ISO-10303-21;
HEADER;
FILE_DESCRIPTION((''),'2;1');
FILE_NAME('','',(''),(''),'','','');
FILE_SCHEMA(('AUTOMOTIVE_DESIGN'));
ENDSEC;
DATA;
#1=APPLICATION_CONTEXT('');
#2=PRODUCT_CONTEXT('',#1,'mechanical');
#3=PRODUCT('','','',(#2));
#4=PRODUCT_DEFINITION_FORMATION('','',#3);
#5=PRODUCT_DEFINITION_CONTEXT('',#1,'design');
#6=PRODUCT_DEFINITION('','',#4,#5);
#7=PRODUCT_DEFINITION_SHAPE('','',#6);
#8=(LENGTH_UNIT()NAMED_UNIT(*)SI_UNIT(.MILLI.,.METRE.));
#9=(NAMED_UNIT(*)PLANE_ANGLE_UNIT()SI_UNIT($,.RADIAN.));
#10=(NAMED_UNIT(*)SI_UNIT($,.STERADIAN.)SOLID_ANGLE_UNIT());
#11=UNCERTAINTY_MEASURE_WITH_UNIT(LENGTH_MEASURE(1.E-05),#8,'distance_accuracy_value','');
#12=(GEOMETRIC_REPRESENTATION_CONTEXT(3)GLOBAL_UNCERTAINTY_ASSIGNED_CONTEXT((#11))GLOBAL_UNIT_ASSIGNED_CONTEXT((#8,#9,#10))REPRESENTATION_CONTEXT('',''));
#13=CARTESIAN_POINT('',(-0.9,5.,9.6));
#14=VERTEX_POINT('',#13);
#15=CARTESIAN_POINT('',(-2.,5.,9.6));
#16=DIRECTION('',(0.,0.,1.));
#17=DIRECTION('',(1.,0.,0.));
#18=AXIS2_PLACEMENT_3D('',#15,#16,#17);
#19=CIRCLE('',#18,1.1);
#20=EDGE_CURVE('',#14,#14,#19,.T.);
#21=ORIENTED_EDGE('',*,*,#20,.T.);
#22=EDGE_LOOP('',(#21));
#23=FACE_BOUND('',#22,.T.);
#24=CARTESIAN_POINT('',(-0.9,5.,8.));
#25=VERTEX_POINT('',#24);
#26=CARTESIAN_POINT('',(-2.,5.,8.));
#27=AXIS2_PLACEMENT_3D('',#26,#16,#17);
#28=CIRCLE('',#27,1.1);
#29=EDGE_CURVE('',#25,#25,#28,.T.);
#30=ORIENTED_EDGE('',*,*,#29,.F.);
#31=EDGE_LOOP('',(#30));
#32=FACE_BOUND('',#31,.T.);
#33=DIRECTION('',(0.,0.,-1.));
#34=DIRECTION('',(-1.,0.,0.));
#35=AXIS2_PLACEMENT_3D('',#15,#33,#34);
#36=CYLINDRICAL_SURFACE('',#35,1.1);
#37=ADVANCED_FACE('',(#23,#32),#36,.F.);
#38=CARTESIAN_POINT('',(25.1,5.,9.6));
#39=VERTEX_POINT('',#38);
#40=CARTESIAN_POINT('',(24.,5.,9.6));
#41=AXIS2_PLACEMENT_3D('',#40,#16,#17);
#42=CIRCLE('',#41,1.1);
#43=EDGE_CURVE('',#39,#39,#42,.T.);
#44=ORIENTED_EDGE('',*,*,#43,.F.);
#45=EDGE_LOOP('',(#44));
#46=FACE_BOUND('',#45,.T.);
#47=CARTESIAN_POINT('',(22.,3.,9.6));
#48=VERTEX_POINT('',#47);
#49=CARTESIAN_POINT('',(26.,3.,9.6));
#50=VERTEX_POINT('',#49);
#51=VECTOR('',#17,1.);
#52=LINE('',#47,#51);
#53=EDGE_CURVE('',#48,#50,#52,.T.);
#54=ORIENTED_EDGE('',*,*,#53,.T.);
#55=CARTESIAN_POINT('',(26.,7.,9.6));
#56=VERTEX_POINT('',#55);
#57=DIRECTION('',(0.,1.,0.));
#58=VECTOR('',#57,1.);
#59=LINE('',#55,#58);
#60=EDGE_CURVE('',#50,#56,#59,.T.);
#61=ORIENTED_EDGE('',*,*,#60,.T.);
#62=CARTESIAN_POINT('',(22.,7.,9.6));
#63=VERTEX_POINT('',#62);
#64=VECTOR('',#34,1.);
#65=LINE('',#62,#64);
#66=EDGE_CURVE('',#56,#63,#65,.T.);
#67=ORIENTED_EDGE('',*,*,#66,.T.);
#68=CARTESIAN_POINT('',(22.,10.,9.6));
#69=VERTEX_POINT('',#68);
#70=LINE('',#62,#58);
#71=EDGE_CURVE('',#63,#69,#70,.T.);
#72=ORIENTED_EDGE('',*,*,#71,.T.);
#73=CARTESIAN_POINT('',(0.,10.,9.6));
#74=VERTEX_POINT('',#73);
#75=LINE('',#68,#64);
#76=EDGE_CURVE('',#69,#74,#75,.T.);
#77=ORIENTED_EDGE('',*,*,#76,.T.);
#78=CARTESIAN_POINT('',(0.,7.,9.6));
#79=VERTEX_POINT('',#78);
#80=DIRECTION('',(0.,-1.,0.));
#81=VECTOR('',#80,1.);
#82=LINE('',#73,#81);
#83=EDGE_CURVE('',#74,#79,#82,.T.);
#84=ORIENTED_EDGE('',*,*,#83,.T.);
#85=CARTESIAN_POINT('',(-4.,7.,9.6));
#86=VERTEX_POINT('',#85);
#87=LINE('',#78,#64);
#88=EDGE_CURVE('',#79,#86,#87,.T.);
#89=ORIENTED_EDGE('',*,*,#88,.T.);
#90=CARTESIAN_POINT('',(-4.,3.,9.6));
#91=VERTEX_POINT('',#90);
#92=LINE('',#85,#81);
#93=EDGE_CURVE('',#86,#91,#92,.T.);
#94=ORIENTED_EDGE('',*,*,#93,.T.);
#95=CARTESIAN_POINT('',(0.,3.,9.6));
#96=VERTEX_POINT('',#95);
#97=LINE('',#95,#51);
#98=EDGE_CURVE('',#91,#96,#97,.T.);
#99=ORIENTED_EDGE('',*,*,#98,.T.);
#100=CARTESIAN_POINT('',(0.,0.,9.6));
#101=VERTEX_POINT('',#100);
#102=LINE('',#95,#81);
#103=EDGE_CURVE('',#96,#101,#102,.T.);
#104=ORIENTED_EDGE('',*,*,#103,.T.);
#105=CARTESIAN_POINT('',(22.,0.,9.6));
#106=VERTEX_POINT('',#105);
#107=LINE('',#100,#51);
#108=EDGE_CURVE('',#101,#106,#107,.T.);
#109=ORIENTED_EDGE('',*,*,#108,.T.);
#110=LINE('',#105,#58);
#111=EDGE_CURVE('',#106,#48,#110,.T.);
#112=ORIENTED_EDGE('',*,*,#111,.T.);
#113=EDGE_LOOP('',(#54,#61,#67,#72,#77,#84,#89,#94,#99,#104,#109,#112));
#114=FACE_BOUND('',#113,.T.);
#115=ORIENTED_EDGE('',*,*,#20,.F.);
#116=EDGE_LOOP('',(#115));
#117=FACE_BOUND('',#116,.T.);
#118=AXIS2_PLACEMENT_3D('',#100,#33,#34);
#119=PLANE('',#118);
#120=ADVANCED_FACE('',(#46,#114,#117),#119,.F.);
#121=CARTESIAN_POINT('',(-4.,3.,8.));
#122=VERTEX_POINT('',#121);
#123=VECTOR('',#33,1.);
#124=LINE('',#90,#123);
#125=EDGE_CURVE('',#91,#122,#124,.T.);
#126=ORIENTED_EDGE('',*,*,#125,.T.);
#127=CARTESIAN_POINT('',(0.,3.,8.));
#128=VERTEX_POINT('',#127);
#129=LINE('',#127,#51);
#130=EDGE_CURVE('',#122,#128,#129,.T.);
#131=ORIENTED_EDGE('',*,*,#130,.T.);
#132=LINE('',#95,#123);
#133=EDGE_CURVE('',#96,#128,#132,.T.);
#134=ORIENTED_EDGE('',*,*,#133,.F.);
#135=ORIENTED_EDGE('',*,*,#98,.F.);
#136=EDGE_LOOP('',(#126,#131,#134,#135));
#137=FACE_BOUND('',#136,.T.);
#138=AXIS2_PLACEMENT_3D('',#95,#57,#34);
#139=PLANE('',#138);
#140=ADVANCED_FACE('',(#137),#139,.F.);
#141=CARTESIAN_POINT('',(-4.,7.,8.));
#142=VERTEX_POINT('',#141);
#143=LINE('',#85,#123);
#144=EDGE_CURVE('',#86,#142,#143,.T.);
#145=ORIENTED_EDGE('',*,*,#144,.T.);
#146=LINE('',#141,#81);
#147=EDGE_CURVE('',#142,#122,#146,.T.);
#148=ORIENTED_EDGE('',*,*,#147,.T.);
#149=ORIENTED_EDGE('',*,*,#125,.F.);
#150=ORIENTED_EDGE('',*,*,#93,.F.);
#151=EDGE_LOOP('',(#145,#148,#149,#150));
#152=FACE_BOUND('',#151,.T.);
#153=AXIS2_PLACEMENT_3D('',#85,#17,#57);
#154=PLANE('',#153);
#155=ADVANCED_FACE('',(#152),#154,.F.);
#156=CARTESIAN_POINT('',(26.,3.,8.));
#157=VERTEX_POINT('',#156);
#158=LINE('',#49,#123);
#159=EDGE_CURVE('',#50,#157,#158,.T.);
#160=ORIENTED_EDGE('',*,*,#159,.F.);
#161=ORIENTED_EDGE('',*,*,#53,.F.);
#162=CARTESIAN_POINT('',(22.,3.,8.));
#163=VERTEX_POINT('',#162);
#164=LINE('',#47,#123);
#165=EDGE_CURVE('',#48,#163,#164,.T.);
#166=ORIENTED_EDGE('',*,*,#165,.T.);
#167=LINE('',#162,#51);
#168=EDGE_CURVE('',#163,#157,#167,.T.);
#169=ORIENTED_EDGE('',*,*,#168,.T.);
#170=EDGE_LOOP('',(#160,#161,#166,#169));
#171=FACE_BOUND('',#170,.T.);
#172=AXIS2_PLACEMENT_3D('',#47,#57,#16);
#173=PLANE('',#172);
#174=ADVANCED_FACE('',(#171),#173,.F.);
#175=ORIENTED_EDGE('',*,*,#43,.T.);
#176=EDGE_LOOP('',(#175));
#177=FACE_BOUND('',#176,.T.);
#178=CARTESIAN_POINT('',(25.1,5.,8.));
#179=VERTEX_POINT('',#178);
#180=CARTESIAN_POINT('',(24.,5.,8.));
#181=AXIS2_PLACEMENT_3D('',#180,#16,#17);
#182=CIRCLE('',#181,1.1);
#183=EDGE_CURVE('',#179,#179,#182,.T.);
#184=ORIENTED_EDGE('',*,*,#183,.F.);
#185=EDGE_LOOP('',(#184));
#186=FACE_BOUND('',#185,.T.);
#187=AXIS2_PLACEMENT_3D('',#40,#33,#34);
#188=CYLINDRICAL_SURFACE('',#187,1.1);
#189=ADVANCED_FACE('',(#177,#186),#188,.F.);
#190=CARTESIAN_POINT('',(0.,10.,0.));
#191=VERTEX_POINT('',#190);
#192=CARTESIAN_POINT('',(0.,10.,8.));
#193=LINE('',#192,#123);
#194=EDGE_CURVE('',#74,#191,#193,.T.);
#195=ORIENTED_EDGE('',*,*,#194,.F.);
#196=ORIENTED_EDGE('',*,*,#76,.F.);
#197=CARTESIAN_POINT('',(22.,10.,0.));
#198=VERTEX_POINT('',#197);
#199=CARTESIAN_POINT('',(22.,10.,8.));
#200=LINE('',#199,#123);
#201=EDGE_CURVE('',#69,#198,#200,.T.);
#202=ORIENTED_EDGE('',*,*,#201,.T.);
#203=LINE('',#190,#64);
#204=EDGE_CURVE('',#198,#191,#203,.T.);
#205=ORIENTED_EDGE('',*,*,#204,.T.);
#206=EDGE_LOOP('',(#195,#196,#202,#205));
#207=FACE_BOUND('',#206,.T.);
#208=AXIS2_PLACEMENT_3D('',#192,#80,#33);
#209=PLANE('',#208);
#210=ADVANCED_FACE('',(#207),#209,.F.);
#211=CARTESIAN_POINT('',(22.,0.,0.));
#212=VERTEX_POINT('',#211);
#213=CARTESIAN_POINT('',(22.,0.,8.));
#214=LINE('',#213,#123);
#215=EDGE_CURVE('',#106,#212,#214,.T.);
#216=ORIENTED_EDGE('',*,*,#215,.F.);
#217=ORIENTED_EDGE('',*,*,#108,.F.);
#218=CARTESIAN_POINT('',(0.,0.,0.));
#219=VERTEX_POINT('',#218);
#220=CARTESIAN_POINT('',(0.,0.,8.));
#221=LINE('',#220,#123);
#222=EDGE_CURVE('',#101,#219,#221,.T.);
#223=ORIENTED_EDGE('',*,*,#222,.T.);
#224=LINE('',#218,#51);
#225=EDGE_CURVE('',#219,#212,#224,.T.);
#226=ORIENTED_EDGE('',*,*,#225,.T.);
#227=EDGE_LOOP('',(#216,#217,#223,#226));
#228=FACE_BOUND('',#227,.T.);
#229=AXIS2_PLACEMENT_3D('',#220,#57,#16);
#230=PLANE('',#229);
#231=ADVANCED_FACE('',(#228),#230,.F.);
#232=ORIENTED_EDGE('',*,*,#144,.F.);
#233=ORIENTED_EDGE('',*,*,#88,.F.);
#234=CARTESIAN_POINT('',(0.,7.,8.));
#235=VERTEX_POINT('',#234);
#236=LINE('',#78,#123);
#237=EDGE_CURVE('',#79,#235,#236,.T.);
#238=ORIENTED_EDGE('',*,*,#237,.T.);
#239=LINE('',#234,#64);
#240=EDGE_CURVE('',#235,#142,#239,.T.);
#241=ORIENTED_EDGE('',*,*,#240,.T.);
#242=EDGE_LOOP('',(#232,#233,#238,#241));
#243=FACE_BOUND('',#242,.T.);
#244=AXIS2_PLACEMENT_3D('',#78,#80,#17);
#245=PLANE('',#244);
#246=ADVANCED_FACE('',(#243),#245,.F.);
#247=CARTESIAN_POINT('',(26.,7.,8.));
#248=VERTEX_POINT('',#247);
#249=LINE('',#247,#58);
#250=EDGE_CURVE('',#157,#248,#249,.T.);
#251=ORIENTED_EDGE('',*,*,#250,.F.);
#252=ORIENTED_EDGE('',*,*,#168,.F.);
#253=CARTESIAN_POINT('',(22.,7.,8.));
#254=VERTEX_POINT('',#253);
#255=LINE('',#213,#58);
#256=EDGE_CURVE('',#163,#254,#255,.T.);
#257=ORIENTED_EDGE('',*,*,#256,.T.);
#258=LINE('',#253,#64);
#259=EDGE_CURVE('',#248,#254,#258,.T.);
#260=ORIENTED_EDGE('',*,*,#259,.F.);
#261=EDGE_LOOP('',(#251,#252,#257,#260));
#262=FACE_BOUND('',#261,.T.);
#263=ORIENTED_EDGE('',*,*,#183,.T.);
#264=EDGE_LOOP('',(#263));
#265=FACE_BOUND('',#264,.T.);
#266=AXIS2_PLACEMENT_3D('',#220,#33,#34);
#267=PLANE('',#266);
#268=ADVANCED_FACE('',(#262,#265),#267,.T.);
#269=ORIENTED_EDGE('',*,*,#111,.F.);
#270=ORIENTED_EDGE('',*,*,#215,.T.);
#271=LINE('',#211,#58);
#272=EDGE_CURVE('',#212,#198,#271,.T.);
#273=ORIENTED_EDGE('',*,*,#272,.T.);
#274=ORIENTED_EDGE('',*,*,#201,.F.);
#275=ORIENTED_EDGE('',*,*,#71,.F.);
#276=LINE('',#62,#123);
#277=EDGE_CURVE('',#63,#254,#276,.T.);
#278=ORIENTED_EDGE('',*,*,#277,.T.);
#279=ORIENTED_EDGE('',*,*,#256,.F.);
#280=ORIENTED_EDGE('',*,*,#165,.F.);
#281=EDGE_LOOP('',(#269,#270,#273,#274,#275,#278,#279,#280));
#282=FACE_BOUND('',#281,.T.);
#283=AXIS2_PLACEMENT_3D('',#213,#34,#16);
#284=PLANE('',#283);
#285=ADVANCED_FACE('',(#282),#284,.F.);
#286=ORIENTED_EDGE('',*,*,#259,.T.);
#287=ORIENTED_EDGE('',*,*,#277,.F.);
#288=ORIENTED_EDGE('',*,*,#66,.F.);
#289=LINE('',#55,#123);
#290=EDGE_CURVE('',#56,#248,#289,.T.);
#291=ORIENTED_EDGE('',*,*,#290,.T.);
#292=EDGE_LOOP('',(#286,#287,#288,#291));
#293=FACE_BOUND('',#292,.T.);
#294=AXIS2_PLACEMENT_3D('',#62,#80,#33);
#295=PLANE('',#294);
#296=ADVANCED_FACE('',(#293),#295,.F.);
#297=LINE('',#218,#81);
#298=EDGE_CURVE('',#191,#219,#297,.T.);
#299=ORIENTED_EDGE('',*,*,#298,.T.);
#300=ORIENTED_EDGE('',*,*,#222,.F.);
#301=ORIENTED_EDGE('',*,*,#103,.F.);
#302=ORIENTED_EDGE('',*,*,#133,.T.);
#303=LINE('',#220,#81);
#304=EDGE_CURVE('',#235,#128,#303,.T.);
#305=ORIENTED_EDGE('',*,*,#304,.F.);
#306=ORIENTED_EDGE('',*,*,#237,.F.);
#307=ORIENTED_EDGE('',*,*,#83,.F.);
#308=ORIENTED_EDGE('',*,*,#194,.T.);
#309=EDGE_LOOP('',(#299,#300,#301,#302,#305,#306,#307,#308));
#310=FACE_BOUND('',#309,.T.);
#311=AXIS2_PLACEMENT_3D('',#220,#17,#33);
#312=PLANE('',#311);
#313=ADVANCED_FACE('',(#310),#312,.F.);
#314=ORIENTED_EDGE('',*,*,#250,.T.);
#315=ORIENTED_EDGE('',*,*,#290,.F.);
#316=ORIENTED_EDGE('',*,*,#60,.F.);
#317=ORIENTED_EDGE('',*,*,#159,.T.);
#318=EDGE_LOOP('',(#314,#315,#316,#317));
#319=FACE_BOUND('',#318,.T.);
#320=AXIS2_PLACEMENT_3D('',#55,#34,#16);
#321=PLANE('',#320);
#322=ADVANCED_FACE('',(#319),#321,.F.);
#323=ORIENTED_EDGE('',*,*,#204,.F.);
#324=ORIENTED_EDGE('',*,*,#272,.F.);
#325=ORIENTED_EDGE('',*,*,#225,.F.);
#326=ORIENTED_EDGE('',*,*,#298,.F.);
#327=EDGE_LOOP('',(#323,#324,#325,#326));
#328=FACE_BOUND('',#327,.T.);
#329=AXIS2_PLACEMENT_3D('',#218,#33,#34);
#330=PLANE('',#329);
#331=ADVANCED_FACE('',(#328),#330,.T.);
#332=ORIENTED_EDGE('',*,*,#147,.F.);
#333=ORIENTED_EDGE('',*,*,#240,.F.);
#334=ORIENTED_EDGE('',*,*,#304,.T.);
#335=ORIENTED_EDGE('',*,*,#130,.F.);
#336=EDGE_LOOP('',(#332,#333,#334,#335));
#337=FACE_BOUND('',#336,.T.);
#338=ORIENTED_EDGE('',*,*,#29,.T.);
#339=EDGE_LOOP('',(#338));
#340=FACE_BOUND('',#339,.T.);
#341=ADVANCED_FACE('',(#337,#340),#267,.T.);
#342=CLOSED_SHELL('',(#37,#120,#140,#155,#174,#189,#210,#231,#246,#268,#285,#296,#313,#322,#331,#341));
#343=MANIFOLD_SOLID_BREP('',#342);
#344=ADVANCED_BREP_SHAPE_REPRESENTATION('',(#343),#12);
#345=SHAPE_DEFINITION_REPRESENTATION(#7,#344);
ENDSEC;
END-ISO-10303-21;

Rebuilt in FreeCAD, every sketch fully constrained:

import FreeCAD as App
import Part
import Sketcher

V = App.Vector
Q = App.Units.Quantity

doc = App.newDocument("Part")
body = doc.addObject("PartDesign::Body", "Body")

# Sketch on XY plane
sketch1 = doc.addObject("Sketcher::SketchObject", "Sketch")
body.addObject(sketch1)
sketch1.AttachmentSupport = (doc.XY_Plane, [""])
sketch1.MapMode = "FlatFace"
sketch1.addGeometry(Part.LineSegment(V(0, 10, 0), V(0, 0, 0)), False)
sketch1.addGeometry(Part.LineSegment(V(0, 0, 0), V(22, 0, 0)), False)
sketch1.addGeometry(Part.LineSegment(V(22, 0, 0), V(22, 10, 0)), False)
sketch1.addGeometry(Part.LineSegment(V(22, 10, 0), V(0, 10, 0)), False)
sketch1.addConstraint(Sketcher.Constraint("Coincident", 0, 2, 1, 1))
sketch1.addConstraint(Sketcher.Constraint("Coincident", 1, 2, 2, 1))
sketch1.addConstraint(Sketcher.Constraint("Coincident", 2, 2, 3, 1))
sketch1.addConstraint(Sketcher.Constraint("Coincident", 3, 2, 0, 1))
sketch1.addConstraint(Sketcher.Constraint("Vertical", 0))
sketch1.addConstraint(Sketcher.Constraint("Horizontal", 1))
sketch1.addConstraint(Sketcher.Constraint("Vertical", 2))
sketch1.addConstraint(Sketcher.Constraint("Horizontal", 3))
sketch1.addConstraint(Sketcher.Constraint("Coincident", 0, 2, -1, 1))
sketch1.addConstraint(Sketcher.Constraint("DistanceX", 1, 1, 1, 2, Q("22 mm")))
sketch1.addConstraint(Sketcher.Constraint("DistanceY", 0, 2, 0, 1, Q("10 mm")))
pad1 = doc.addObject("PartDesign::Pad", "Pad")
body.addObject(pad1)
pad1.Profile = sketch1
pad1.Length = 8

# Sketch on XY plane
sketch2 = doc.addObject("Sketcher::SketchObject", "Sketch001")
body.addObject(sketch2)
sketch2.AttachmentSupport = (doc.XY_Plane, [""])
sketch2.MapMode = "FlatFace"
sketch2.AttachmentOffset = App.Placement(V(0, 0, 8), App.Rotation())
sketch2.addGeometry(Part.LineSegment(V(0, 7, 0), V(-4, 7, 0)), False)
sketch2.addGeometry(Part.LineSegment(V(-4, 7, 0), V(-4, 3, 0)), False)
sketch2.addGeometry(Part.LineSegment(V(-4, 3, 0), V(0, 3, 0)), False)
sketch2.addGeometry(Part.LineSegment(V(0, 3, 0), V(0, 0, 0)), False)
sketch2.addGeometry(Part.LineSegment(V(0, 0, 0), V(22, 0, 0)), False)
sketch2.addGeometry(Part.LineSegment(V(22, 0, 0), V(22, 3, 0)), False)
sketch2.addGeometry(Part.LineSegment(V(22, 3, 0), V(26, 3, 0)), False)
sketch2.addGeometry(Part.LineSegment(V(26, 3, 0), V(26, 7, 0)), False)
sketch2.addGeometry(Part.LineSegment(V(26, 7, 0), V(22, 7, 0)), False)
sketch2.addGeometry(Part.LineSegment(V(22, 7, 0), V(22, 10, 0)), False)
sketch2.addGeometry(Part.LineSegment(V(22, 10, 0), V(0, 10, 0)), False)
sketch2.addGeometry(Part.LineSegment(V(0, 10, 0), V(0, 7, 0)), False)
sketch2.addGeometry(Part.Circle(V(-2, 5, 0), V(0, 0, 1), 1.1), False)
sketch2.addGeometry(Part.Circle(V(24, 5, 0), V(0, 0, 1), 1.1), False)
sketch2.addConstraint(Sketcher.Constraint("Coincident", 0, 2, 1, 1))
sketch2.addConstraint(Sketcher.Constraint("Coincident", 1, 2, 2, 1))
sketch2.addConstraint(Sketcher.Constraint("Coincident", 2, 2, 3, 1))
sketch2.addConstraint(Sketcher.Constraint("Coincident", 3, 2, 4, 1))
sketch2.addConstraint(Sketcher.Constraint("Coincident", 4, 2, 5, 1))
sketch2.addConstraint(Sketcher.Constraint("Coincident", 5, 2, 6, 1))
sketch2.addConstraint(Sketcher.Constraint("Coincident", 6, 2, 7, 1))
sketch2.addConstraint(Sketcher.Constraint("Coincident", 7, 2, 8, 1))
sketch2.addConstraint(Sketcher.Constraint("Coincident", 8, 2, 9, 1))
sketch2.addConstraint(Sketcher.Constraint("Coincident", 9, 2, 10, 1))
sketch2.addConstraint(Sketcher.Constraint("Coincident", 10, 2, 11, 1))
sketch2.addConstraint(Sketcher.Constraint("Coincident", 11, 2, 0, 1))
sketch2.addConstraint(Sketcher.Constraint("Horizontal", 0))
sketch2.addConstraint(Sketcher.Constraint("Vertical", 1))
sketch2.addConstraint(Sketcher.Constraint("Horizontal", 2))
sketch2.addConstraint(Sketcher.Constraint("Vertical", 3))
sketch2.addConstraint(Sketcher.Constraint("Horizontal", 4))
sketch2.addConstraint(Sketcher.Constraint("Vertical", 5))
sketch2.addConstraint(Sketcher.Constraint("Horizontal", 6))
sketch2.addConstraint(Sketcher.Constraint("Vertical", 7))
sketch2.addConstraint(Sketcher.Constraint("Horizontal", 8))
sketch2.addConstraint(Sketcher.Constraint("Vertical", 9))
sketch2.addConstraint(Sketcher.Constraint("Horizontal", 10))
sketch2.addConstraint(Sketcher.Constraint("Vertical", 11))
sketch2.addConstraint(Sketcher.Constraint("Coincident", 3, 2, -1, 1))
sketch2.addConstraint(Sketcher.Constraint("Equal", 12, 13))
sketch2.addConstraint(Sketcher.Constraint("PointOnObject", 10, 2, -2))
sketch2.addConstraint(Sketcher.Constraint("Horizontal", 12, 3, 13, 3))
sketch2.addConstraint(Sketcher.Constraint("Horizontal", 2, 2, 5, 2))
sketch2.addConstraint(Sketcher.Constraint("Horizontal", 0, 2, 7, 2))
sketch2.addConstraint(Sketcher.Constraint("Vertical", 5, 2, 8, 2))
sketch2.addConstraint(Sketcher.Constraint("Equal", 2, 6))
sketch2.addConstraint(Sketcher.Constraint("Equal", 8, 1))
sketch2.addConstraint(Sketcher.Constraint("Equal", 5, 9))
sketch2.addConstraint(Sketcher.Constraint("Diameter", 12, Q("2.2 mm")))
sketch2.addConstraint(Sketcher.Constraint("DistanceX", 0, 2, 0, 1, Q("4 mm")))
sketch2.addConstraint(Sketcher.Constraint("DistanceX", 4, 1, 4, 2, Q("22 mm")))
sketch2.addConstraint(Sketcher.Constraint("DistanceY", 3, 2, 3, 1, Q("3 mm")))
sketch2.addConstraint(Sketcher.Constraint("DistanceX", 12, 3, -1, 1, Q("2 mm")))
sketch2.addConstraint(Sketcher.Constraint("DistanceY", -1, 1, 12, 3, Q("5 mm")))
sketch2.addConstraint(Sketcher.Constraint("DistanceX", -1, 1, 13, 3, Q("24 mm")))
pad2 = doc.addObject("PartDesign::Pad", "Pad001")
body.addObject(pad2)
pad2.Profile = sketch2
pad2.Length = 1.6

doc.recompute()
